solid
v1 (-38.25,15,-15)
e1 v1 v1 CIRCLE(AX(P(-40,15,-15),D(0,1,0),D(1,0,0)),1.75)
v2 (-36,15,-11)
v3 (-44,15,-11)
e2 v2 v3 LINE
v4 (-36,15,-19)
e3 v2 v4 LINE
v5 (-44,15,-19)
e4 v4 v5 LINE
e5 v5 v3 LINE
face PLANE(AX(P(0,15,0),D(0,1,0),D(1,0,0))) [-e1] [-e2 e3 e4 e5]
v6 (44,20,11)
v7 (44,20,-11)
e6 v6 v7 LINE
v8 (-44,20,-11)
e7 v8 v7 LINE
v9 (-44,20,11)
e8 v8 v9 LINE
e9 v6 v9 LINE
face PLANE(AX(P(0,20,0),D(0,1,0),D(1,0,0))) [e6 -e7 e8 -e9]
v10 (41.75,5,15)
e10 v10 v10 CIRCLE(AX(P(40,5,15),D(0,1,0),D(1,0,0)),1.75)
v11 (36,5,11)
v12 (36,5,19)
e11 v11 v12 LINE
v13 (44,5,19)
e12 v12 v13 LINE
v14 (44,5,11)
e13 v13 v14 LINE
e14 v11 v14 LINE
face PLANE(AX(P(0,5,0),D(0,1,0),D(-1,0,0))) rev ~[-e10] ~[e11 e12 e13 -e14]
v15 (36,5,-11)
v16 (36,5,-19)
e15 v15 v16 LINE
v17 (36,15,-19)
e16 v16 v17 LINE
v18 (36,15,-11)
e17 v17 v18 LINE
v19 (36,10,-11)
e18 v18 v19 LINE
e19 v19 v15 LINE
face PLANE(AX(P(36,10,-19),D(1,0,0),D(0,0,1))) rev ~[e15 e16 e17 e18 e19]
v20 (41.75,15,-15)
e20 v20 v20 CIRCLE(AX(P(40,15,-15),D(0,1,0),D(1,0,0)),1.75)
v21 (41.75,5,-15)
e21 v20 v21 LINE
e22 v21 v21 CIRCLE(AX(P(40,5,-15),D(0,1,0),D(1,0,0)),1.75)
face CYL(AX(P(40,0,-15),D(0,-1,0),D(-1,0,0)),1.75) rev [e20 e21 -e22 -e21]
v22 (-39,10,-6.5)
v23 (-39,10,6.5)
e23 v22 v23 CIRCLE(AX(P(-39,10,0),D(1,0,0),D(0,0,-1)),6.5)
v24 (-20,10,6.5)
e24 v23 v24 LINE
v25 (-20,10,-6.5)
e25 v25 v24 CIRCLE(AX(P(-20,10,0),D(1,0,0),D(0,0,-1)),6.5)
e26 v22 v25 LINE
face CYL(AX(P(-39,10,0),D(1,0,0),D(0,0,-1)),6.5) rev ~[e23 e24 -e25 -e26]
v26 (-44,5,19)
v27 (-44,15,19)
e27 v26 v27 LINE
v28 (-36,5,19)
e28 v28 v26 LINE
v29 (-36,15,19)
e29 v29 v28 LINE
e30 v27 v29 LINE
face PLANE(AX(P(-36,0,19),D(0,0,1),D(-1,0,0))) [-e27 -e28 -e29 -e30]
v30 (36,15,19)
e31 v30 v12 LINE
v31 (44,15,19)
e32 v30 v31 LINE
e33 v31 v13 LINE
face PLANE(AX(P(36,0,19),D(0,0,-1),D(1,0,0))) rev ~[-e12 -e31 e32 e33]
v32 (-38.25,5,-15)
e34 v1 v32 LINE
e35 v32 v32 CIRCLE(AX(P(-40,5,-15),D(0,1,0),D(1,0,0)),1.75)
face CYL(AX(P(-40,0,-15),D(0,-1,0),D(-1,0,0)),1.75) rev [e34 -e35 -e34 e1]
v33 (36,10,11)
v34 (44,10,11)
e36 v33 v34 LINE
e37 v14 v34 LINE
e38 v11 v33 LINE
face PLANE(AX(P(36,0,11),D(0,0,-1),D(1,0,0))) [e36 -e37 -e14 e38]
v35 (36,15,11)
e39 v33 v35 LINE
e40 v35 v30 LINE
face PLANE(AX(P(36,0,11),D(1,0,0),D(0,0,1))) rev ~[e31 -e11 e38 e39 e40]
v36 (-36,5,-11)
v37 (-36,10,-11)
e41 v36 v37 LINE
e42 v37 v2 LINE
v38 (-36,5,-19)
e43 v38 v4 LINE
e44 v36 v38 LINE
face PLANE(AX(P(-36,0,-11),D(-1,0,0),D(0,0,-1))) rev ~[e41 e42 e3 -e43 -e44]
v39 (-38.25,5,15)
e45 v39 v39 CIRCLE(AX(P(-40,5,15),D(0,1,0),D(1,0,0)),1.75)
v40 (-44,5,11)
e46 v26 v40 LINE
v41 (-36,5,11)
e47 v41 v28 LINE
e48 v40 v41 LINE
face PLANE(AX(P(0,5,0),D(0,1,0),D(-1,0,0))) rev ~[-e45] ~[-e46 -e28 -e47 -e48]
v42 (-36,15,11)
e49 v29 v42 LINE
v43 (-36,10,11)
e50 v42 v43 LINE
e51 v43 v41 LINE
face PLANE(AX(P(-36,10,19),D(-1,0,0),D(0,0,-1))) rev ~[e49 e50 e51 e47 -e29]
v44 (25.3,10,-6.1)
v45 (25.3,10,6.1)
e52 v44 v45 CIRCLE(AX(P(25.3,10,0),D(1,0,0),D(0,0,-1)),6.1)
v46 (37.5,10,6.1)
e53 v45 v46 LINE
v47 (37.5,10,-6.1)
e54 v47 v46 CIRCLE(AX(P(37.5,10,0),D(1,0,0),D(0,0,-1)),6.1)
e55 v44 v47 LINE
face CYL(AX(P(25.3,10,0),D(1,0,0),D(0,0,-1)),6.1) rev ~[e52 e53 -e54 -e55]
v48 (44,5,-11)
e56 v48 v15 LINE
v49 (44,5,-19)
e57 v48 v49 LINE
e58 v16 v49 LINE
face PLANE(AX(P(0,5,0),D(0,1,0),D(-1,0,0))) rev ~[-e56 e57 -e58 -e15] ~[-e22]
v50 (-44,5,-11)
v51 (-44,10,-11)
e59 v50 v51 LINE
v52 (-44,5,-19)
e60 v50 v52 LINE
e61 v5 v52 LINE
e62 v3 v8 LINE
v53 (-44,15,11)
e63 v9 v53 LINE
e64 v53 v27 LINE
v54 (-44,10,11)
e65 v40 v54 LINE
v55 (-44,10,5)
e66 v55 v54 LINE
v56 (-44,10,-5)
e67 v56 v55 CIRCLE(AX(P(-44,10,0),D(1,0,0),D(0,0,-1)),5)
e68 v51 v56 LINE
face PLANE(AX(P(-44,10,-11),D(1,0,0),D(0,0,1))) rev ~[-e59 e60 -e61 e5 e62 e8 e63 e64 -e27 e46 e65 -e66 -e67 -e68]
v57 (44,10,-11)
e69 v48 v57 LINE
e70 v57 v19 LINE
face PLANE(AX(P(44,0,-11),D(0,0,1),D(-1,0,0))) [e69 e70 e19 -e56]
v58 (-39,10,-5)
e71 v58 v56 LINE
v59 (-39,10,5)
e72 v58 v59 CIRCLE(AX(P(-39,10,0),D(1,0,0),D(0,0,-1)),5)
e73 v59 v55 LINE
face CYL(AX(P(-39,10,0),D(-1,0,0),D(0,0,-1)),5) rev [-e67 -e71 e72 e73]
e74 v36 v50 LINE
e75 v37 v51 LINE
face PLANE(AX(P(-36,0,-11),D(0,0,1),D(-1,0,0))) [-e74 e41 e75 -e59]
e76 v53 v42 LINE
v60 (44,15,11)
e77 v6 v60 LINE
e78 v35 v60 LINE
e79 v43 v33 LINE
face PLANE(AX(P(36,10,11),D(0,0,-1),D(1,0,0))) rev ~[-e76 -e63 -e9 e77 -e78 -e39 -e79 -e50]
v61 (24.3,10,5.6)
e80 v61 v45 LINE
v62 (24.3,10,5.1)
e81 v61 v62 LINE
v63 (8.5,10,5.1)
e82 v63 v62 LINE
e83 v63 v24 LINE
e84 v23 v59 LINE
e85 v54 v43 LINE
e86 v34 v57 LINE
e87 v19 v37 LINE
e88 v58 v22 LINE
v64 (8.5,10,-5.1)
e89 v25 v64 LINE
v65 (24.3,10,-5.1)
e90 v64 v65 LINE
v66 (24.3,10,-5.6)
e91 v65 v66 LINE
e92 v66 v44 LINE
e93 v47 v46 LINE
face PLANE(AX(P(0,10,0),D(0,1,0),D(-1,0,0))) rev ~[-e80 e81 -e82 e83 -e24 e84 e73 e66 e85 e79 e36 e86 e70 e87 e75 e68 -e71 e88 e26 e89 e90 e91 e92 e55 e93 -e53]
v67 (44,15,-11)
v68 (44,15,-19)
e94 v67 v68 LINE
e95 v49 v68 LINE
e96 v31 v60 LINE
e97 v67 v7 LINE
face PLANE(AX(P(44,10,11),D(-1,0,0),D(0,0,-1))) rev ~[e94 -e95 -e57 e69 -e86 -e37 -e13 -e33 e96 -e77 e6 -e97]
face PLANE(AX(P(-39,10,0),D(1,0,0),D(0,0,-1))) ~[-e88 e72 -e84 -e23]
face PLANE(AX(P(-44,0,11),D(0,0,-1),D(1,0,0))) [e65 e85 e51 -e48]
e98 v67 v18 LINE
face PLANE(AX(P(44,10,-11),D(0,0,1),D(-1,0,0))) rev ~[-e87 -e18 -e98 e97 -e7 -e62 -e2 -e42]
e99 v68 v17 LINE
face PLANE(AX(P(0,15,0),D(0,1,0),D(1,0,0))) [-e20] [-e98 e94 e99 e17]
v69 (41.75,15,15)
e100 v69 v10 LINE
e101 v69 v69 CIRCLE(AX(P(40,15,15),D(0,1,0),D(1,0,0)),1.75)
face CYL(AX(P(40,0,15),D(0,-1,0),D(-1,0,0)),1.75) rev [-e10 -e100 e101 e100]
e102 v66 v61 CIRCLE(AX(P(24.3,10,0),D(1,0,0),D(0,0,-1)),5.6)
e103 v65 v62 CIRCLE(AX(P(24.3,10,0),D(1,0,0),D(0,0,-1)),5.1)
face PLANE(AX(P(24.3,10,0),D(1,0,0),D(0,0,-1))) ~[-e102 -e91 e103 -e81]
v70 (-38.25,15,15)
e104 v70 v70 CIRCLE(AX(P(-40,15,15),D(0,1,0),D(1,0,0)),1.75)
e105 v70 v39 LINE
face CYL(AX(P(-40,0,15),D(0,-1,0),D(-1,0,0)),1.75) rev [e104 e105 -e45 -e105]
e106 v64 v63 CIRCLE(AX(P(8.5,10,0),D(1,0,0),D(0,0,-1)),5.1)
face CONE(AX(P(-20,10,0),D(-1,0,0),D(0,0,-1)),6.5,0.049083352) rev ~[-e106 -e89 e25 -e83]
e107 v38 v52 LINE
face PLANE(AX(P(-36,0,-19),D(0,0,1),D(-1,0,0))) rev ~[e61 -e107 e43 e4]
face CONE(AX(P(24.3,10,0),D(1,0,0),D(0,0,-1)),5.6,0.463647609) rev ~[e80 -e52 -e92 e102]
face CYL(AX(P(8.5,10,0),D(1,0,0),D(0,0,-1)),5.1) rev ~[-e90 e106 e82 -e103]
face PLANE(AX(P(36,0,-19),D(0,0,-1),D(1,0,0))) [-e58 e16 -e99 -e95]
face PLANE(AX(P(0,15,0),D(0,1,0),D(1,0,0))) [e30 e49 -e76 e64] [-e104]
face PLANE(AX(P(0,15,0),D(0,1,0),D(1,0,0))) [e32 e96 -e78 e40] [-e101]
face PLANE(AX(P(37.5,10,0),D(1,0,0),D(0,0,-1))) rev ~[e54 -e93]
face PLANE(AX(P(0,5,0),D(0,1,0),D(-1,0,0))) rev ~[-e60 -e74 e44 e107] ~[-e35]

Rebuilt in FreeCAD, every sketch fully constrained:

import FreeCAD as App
import Part
import Sketcher

V = App.Vector

doc = App.newDocument("Part")
body = doc.addObject("PartDesign::Body", "Body")

# Sketch on XZ plane
sketch1 = body.newObject("Sketcher::SketchObject", "Sketch")
sketch1.AttachmentSupport = (doc.getObject("XZ_Plane"), [""])
sketch1.MapMode = "FlatFace"
sketch1.addGeometry(Part.LineSegment(V(-44, -11, 0), V(-44, 11, 0)), False)
sketch1.addGeometry(Part.LineSegment(V(-44, 11, 0), V(44, 11, 0)), False)
sketch1.addGeometry(Part.LineSegment(V(44, 11, 0), V(44, -11, 0)), False)
sketch1.addGeometry(Part.LineSegment(V(44, -11, 0), V(-44, -11, 0)), False)
sketch1.addConstraint(Sketcher.Constraint("Coincident", 0, 2, 1, 1))
sketch1.addConstraint(Sketcher.Constraint("Coincident", 1, 2, 2, 1))
sketch1.addConstraint(Sketcher.Constraint("Coincident", 2, 2, 3, 1))
sketch1.addConstraint(Sketcher.Constraint("Coincident", 3, 2, 0, 1))
sketch1.addConstraint(Sketcher.Constraint("Vertical", 0))
sketch1.addConstraint(Sketcher.Constraint("Horizontal", 1))
sketch1.addConstraint(Sketcher.Constraint("Vertical", 2))
sketch1.addConstraint(Sketcher.Constraint("Horizontal", 3))
sketch1.addConstraint(Sketcher.Constraint("Symmetric", 0, 2, 2, 2, -1, 1))
sketch1.addConstraint(Sketcher.Constraint("DistanceX", 1, 1, 1, 2, 88.0))
sketch1.addConstraint(Sketcher.Constraint("DistanceY", 0, 1, 0, 2, 22.0))
pad1 = body.newObject("PartDesign::Pad", "Pad")
pad1.Profile = sketch1
pad1.Length = 10
pad1.Reversed = True

# Sketch on XZ plane
sketch2 = body.newObject("Sketcher::SketchObject", "Sketch001")
sketch2.AttachmentSupport = (doc.getObject("XZ_Plane"), [""])
sketch2.MapMode = "FlatFace"
sketch2.addGeometry(Part.LineSegment(V(-36, 11, 0), V(-44, 11, 0)), False)
sketch2.addGeometry(Part.LineSegment(V(-44, 11, 0), V(-44, 19, 0)), False)
sketch2.addGeometry(Part.LineSegment(V(-44, 19, 0), V(-36, 19, 0)), False)
sketch2.addGeometry(Part.LineSegment(V(-36, 19, 0), V(-36, 11, 0)), False)
sketch2.addGeometry(Part.Circle(V(-40, 15, 0), V(0, 0, 1), 1.75), False)
sketch2.addGeometry(Part.LineSegment(V(-44, -19, 0), V(-44, -11, 0)), False)
sketch2.addGeometry(Part.LineSegment(V(-44, -11, 0), V(-36, -11, 0)), False)
sketch2.addGeometry(Part.LineSegment(V(-36, -11, 0), V(-36, -19, 0)), False)
sketch2.addGeometry(Part.LineSegment(V(-36, -19, 0), V(-44, -19, 0)), False)
sketch2.addGeometry(Part.Circle(V(-40, -15, 0), V(0, 0, 1), 1.75), False)
sketch2.addGeometry(Part.LineSegment(V(44, 11, 0), V(36, 11, 0)), False)
sketch2.addGeometry(Part.LineSegment(V(36, 11, 0), V(36, 19, 0)), False)
sketch2.addGeometry(Part.LineSegment(V(36, 19, 0), V(44, 19, 0)), False)
sketch2.addGeometry(Part.LineSegment(V(44, 19, 0), V(44, 11, 0)), False)
sketch2.addGeometry(Part.Circle(V(40, 15, 0), V(0, 0, 1), 1.75), False)
sketch2.addGeometry(Part.LineSegment(V(36, -19, 0), V(36, -11, 0)), False)
sketch2.addGeometry(Part.LineSegment(V(36, -11, 0), V(44, -11, 0)), False)
sketch2.addGeometry(Part.LineSegment(V(44, -11, 0), V(44, -19, 0)), False)
sketch2.addGeometry(Part.LineSegment(V(44, -19, 0), V(36, -19, 0)), False)
sketch2.addGeometry(Part.Circle(V(40, -15, 0), V(0, 0, 1), 1.75), False)
sketch2.addConstraint(Sketcher.Constraint("Coincident", 0, 2, 1, 1))
sketch2.addConstraint(Sketcher.Constraint("Coincident", 1, 2, 2, 1))
sketch2.addConstraint(Sketcher.Constraint("Coincident", 2, 2, 3, 1))
sketch2.addConstraint(Sketcher.Constraint("Coincident", 3, 2, 0, 1))
sketch2.addConstraint(Sketcher.Constraint("Coincident", 5, 2, 6, 1))
sketch2.addConstraint(Sketcher.Constraint("Coincident", 6, 2, 7, 1))
sketch2.addConstraint(Sketcher.Constraint("Coincident", 7, 2, 8, 1))
sketch2.addConstraint(Sketcher.Constraint("Coincident", 8, 2, 5, 1))
sketch2.addConstraint(Sketcher.Constraint("Coincident", 10, 2, 11, 1))
sketch2.addConstraint(Sketcher.Constraint("Coincident", 11, 2, 12, 1))
sketch2.addConstraint(Sketcher.Constraint("Coincident", 12, 2, 13, 1))
sketch2.addConstraint(Sketcher.Constraint("Coincident", 13, 2, 10, 1))
sketch2.addConstraint(Sketcher.Constraint("Coincident", 15, 2, 16, 1))
sketch2.addConstraint(Sketcher.Constraint("Coincident", 16, 2, 17, 1))
sketch2.addConstraint(Sketcher.Constraint("Coincident", 17, 2, 18, 1))
sketch2.addConstraint(Sketcher.Constraint("Coincident", 18, 2, 15, 1))
sketch2.addConstraint(Sketcher.Constraint("Horizontal", 0))
sketch2.addConstraint(Sketcher.Constraint("Vertical", 1))
sketch2.addConstraint(Sketcher.Constraint("Horizontal", 2))
sketch2.addConstraint(Sketcher.Constraint("Vertical", 3))
sketch2.addConstraint(Sketcher.Constraint("Vertical", 5))
sketch2.addConstraint(Sketcher.Constraint("Horizontal", 6))
sketch2.addConstraint(Sketcher.Constraint("Vertical", 7))
sketch2.addConstraint(Sketcher.Constraint("Horizontal", 8))
sketch2.addConstraint(Sketcher.Constraint("Horizontal", 10))
sketch2.addConstraint(Sketcher.Constraint("Vertical", 11))
sketch2.addConstraint(Sketcher.Constraint("Horizontal", 12))
sketch2.addConstraint(Sketcher.Constraint("Vertical", 13))
sketch2.addConstraint(Sketcher.Constraint("Vertical", 15))
sketch2.addConstraint(Sketcher.Constraint("Horizontal", 16))
sketch2.addConstraint(Sketcher.Constraint("Vertical", 17))
sketch2.addConstraint(Sketcher.Constraint("Horizontal", 18))
sketch2.addConstraint(Sketcher.Constraint("Equal", 4, 9))
sketch2.addConstraint(Sketcher.Constraint("Equal", 9, 14))
sketch2.addConstraint(Sketcher.Constraint("Equal", 14, 19))
sketch2.addConstraint(Sketcher.Constraint("Symmetric", 9, 3, 14, 3, -1, 1))
sketch2.addConstraint(Sketcher.Constraint("Symmetric", 4, 3, 19, 3, -1, 1))
sketch2.addConstraint(Sketcher.Constraint("Symmetric", 6, 2, 10, 2, -1, 1))
sketch2.addConstraint(Sketcher.Constraint("Symmetric", 8, 2, 12, 2, -1, 1))
sketch2.addConstraint(Sketcher.Constraint("Symmetric", 3, 2, 15, 2, -1, 1))
sketch2.addConstraint(Sketcher.Constraint("Symmetric", 1, 2, 17, 2, -1, 1))
sketch2.addConstraint(Sketcher.Constraint("Symmetric", 4, 3, 14, 3, -2))
sketch2.addConstraint(Sketcher.Constraint("Symmetric", 3, 2, 10, 2, -2))
sketch2.addConstraint(Sketcher.Constraint("Symmetric", 1, 2, 12, 2, -2))
sketch2.addConstraint(Sketcher.Constraint("Equal", 18, 1))
sketch2.addConstraint(Sketcher.Constraint("Diameter", 4, 3.5))
sketch2.addConstraint(Sketcher.Constraint("DistanceX", 0, 2, 0, 1, 8.0))
sketch2.addConstraint(Sketcher.Constraint("DistanceY", 9, 3, 4, 3, 30.0))
sketch2.addConstraint(Sketcher.Constraint("DistanceX", 4, 3, 14, 3, 80.0))
sketch2.addConstraint(Sketcher.Constraint("DistanceY", 5, 2, 0, 2, 22.0))
sketch2.addConstraint(Sketcher.Constraint("DistanceX", 2, 2, 12, 2, 80.0))
pad2 = body.newObject("PartDesign::Pad", "Pad001")
pad2.Profile = sketch2
pad2.Length = 5
pad2.Reversed = True

# Sketch on XZ plane
sketch3 = body.newObject("Sketcher::SketchObject", "Sketch002")
sketch3.AttachmentSupport = (doc.getObject("XZ_Plane"), [""])
sketch3.MapMode = "FlatFace"
sketch3.AttachmentOffset = App.Placement(V(0, 0, -10), App.Rotation())
sketch3.addGeometry(Part.LineSegment(V(44, 11, 0), V(44, -11, 0)), False)
sketch3.addGeometry(Part.LineSegment(V(44, -11, 0), V(-44, -11, 0)), False)
sketch3.addGeometry(Part.LineSegment(V(-44, -11, 0), V(-44, 11, 0)), False)
sketch3.addGeometry(Part.LineSegment(V(-44, 11, 0), V(44, 11, 0)), False)
sketch3.addConstraint(Sketcher.Constraint("Coincident", 0, 2, 1, 1))
sketch3.addConstraint(Sketcher.Constraint("Coincident", 1, 2, 2, 1))
sketch3.addConstraint(Sketcher.Constraint("Coincident", 2, 2, 3, 1))
sketch3.addConstraint(Sketcher.Constraint("Coincident", 3, 2, 0, 1))
sketch3.addConstraint(Sketcher.Constraint("Vertical", 0))
sketch3.addConstraint(Sketcher.Constraint("Horizontal", 1))
sketch3.addConstraint(Sketcher.Constraint("Vertical", 2))
sketch3.addConstraint(Sketcher.Constraint("Horizontal", 3))
sketch3.addConstraint(Sketcher.Constraint("Symmetric", 0, 2, 2, 2, -1, 1))
sketch3.addConstraint(Sketcher.Constraint("DistanceX", 1, 2, 1, 1, 88.0))
sketch3.addConstraint(Sketcher.Constraint("DistanceY", 0, 2, 0, 1, 22.0))
pad3 = body.newObject("PartDesign::Pad", "Pad002")
pad3.Profile = sketch3
pad3.Length = 10
pad3.Reversed = True

# Sketch on XZ plane
sketch4 = body.newObject("Sketcher::SketchObject", "Sketch003")
sketch4.AttachmentSupport = (doc.getObject("XZ_Plane"), [""])
sketch4.MapMode = "FlatFace"
sketch4.AttachmentOffset = App.Placement(V(0, 0, -10), App.Rotation())
sketch4.addGeometry(Part.LineSegment(V(36, -11, 0), V(44, -11, 0)), False)
sketch4.addGeometry(Part.LineSegment(V(44, -11, 0), V(44, -19, 0)), False)
sketch4.addGeometry(Part.LineSegment(V(44, -19, 0), V(36, -19, 0)), False)
sketch4.addGeometry(Part.LineSegment(V(36, -19, 0), V(36, -11, 0)), False)
sketch4.addGeometry(Part.Circle(V(40, -15, 0), V(0, 0, 1), 1.75), False)
sketch4.addGeometry(Part.LineSegment(V(44, 19, 0), V(44, 11, 0)), False)
sketch4.addGeometry(Part.LineSegment(V(44, 11, 0), V(36, 11, 0)), False)
sketch4.addGeometry(Part.LineSegment(V(36, 11, 0), V(36, 19, 0)), False)
sketch4.addGeometry(Part.LineSegment(V(36, 19, 0), V(44, 19, 0)), False)
sketch4.addGeometry(Part.Circle(V(40, 15, 0), V(0, 0, 1), 1.75), False)
sketch4.addGeometry(Part.LineSegment(V(-44, -11, 0), V(-36, -11, 0)), False)
sketch4.addGeometry(Part.LineSegment(V(-36, -11, 0), V(-36, -19, 0)), False)
sketch4.addGeometry(Part.LineSegment(V(-36, -19, 0), V(-44, -19, 0)), False)
sketch4.addGeometry(Part.LineSegment(V(-44, -19, 0), V(-44, -11, 0)), False)
sketch4.addGeometry(Part.Circle(V(-40, -15, 0), V(0, 0, 1), 1.75), False)
sketch4.addGeometry(Part.LineSegment(V(-36, 19, 0), V(-36, 11, 0)), False)
sketch4.addGeometry(Part.LineSegment(V(-36, 11, 0), V(-44, 11, 0)), False)
sketch4.addGeometry(Part.LineSegment(V(-44, 11, 0), V(-44, 19, 0)), False)
sketch4.addGeometry(Part.LineSegment(V(-44, 19, 0), V(-36, 19, 0)), False)
sketch4.addGeometry(Part.Circle(V(-40, 15, 0), V(0, 0, 1), 1.75), False)
sketch4.addConstraint(Sketcher.Constraint("Coincident", 0, 2, 1, 1))
sketch4.addConstraint(Sketcher.Constraint("Coincident", 1, 2, 2, 1))
sketch4.addConstraint(Sketcher.Constraint("Coincident", 2, 2, 3, 1))
sketch4.addConstraint(Sketcher.Constraint("Coincident", 3, 2, 0, 1))
sketch4.addConstraint(Sketcher.Constraint("Coincident", 5, 2, 6, 1))
sketch4.addConstraint(Sketcher.Constraint("Coincident", 6, 2, 7, 1))
sketch4.addConstraint(Sketcher.Constraint("Coincident", 7, 2, 8, 1))
sketch4.addConstraint(Sketcher.Constraint("Coincident", 8, 2, 5, 1))
sketch4.addConstraint(Sketcher.Constraint("Coincident", 10, 2, 11, 1))
sketch4.addConstraint(Sketcher.Constraint("Coincident", 11, 2, 12, 1))
sketch4.addConstraint(Sketcher.Constraint("Coincident", 12, 2, 13, 1))
sketch4.addConstraint(Sketcher.Constraint("Coincident", 13, 2, 10, 1))
sketch4.addConstraint(Sketcher.Constraint("Coincident", 15, 2, 16, 1))
sketch4.addConstraint(Sketcher.Constraint("Coincident", 16, 2, 17, 1))
sketch4.addConstraint(Sketcher.Constraint("Coincident", 17, 2, 18, 1))
sketch4.addConstraint(Sketcher.Constraint("Coincident", 18, 2, 15, 1))
sketch4.addConstraint(Sketcher.Constraint("Horizontal", 0))
sketch4.addConstraint(Sketcher.Constraint("Vertical", 1))
sketch4.addConstraint(Sketcher.Constraint("Horizontal", 2))
sketch4.addConstraint(Sketcher.Constraint("Vertical", 3))
sketch4.addConstraint(Sketcher.Constraint("Vertical", 5))
sketch4.addConstraint(Sketcher.Constraint("Horizontal", 6))
sketch4.addConstraint(Sketcher.Constraint("Vertical", 7))
sketch4.addConstraint(Sketcher.Constraint("Horizontal", 8))
sketch4.addConstraint(Sketcher.Constraint("Horizontal", 10))
sketch4.addConstraint(Sketcher.Constraint("Vertical", 11))
sketch4.addConstraint(Sketcher.Constraint("Horizontal", 12))
sketch4.addConstraint(Sketcher.Constraint("Vertical", 13))
sketch4.addConstraint(Sketcher.Constraint("Vertical", 15))
sketch4.addConstraint(Sketcher.Constraint("Horizontal", 16))
sketch4.addConstraint(Sketcher.Constraint("Vertical", 17))
sketch4.addConstraint(Sketcher.Constraint("Horizontal", 18))
sketch4.addConstraint(Sketcher.Constraint("Equal", 4, 9))
sketch4.addConstraint(Sketcher.Constraint("Equal", 9, 14))
sketch4.addConstraint(Sketcher.Constraint("Equal", 14, 19))
sketch4.addConstraint(Sketcher.Constraint("Symmetric", 9, 3, 14, 3, -1, 1))
sketch4.addConstraint(Sketcher.Constraint("Symmetric", 4, 3, 19, 3, -1, 1))
sketch4.addConstraint(Sketcher.Constraint("Symmetric", 6, 2, 10, 2, -1, 1))
sketch4.addConstraint(Sketcher.Constraint("Symmetric", 8, 2, 12, 2, -1, 1))
sketch4.addConstraint(Sketcher.Constraint("Symmetric", 3, 2, 15, 2, -1, 1))
sketch4.addConstraint(Sketcher.Constraint("Symmetric", 1, 2, 17, 2, -1, 1))
sketch4.addConstraint(Sketcher.Constraint("Symmetric", 4, 3, 14, 3, -2))
sketch4.addConstraint(Sketcher.Constraint("Symmetric", 3, 2, 10, 2, -2))
sketch4.addConstraint(Sketcher.Constraint("Symmetric", 1, 2, 12, 2, -2))
sketch4.addConstraint(Sketcher.Constraint("Equal", 18, 1))
sketch4.addConstraint(Sketcher.Constraint("Diameter", 4, 3.5))
sketch4.addConstraint(Sketcher.Constraint("DistanceX", 0, 1, 0, 2, 8.0))
sketch4.addConstraint(Sketcher.Constraint("DistanceX", -1, 1, 4, 3, 40.0))
sketch4.addConstraint(Sketcher.Constraint("DistanceY", 4, 3, -1, 1, 15.0))
sketch4.addConstraint(Sketcher.Constraint("DistanceX", -1, 1, 0, 2, 44.0))
sketch4.addConstraint(Sketcher.Constraint("DistanceY", 0, 2, -1, 1, 11.0))
pad4 = body.newObject("PartDesign::Pad", "Pad003")
pad4.Profile = sketch4
pad4.Length = 10
pad4.Midplane = True

# Sketch on XZ plane
sketch5 = body.newObject("Sketcher::SketchObject", "Sketch004")
sketch5.AttachmentSupport = (doc.getObject("XZ_Plane"), [""])
sketch5.MapMode = "FlatFace"
sketch5.AttachmentOffset = App.Placement(V(0, 0, -10), App.Rotation())
sketch5.addGeometry(Part.LineSegment(V(-44, -5, 0), V(-44, 0, 0)), False)
sketch5.addGeometry(Part.LineSegment(V(-44, 0, 0), V(37.5, 0, 0)), False)
sketch5.addGeometry(Part.LineSegment(V(37.5, 0, 0), V(37.5, -6.1, 0)), False)
sketch5.addGeometry(Part.LineSegment(V(37.5, -6.1, 0), V(25.3, -6.1, 0)), False)
sketch5.addGeometry(Part.LineSegment(V(25.3, -6.1, 0), V(24.3, -5.6, 0)), False)
sketch5.addGeometry(Part.LineSegment(V(24.3, -5.6, 0), V(24.3, -5.1, 0)), False)
sketch5.addGeometry(Part.LineSegment(V(24.3, -5.1, 0), V(8.5, -5.1, 0)), False)
sketch5.addGeometry(Part.LineSegment(V(8.5, -5.1, 0), V(-20, -6.5, 0)), False)
sketch5.addGeometry(Part.LineSegment(V(-20, -6.5, 0), V(-39, -6.5, 0)), False)
sketch5.addGeometry(Part.LineSegment(V(-39, -6.5, 0), V(-39, -5, 0)), False)
sketch5.addGeometry(Part.LineSegment(V(-39, -5, 0), V(-44, -5, 0)), False)
sketch5.addConstraint(Sketcher.Constraint("Coincident", 0, 2, 1, 1))
sketch5.addConstraint(Sketcher.Constraint("Coincident", 1, 2, 2, 1))
sketch5.addConstraint(Sketcher.Constraint("Coincident", 2, 2, 3, 1))
sketch5.addConstraint(Sketcher.Constraint("Coincident", 3, 2, 4, 1))
sketch5.addConstraint(Sketcher.Constraint("Coincident", 4, 2, 5, 1))
sketch5.addConstraint(Sketcher.Constraint("Coincident", 5, 2, 6, 1))
sketch5.addConstraint(Sketcher.Constraint("Coincident", 6, 2, 7, 1))
sketch5.addConstraint(Sketcher.Constraint("Coincident", 7, 2, 8, 1))
sketch5.addConstraint(Sketcher.Constraint("Coincident", 8, 2, 9, 1))
sketch5.addConstraint(Sketcher.Constraint("Coincident", 9, 2, 10, 1))
sketch5.addConstraint(Sketcher.Constraint("Coincident", 10, 2, 0, 1))
sketch5.addConstraint(Sketcher.Constraint("Vertical", 0))
sketch5.addConstraint(Sketcher.Constraint("Horizontal", 1))
sketch5.addConstraint(Sketcher.Constraint("Vertical", 2))
sketch5.addConstraint(Sketcher.Constraint("Horizontal", 3))
sketch5.addConstraint(Sketcher.Constraint("Vertical", 5))
sketch5.addConstraint(Sketcher.Constraint("Horizontal", 6))
sketch5.addConstraint(Sketcher.Constraint("Horizontal", 8))
sketch5.addConstraint(Sketcher.Constraint("Vertical", 9))
sketch5.addConstraint(Sketcher.Constraint("Horizontal", 10))
sketch5.addConstraint(Sketcher.Constraint("PointOnObject", 0, 2, -1))
sketch5.addConstraint(Sketcher.Constraint("Equal", 10, 0))
sketch5.addConstraint(Sketcher.Constraint("DistanceX", 8, 2, 8, 1, 19.0))
sketch5.addConstraint(Sketcher.Constraint("DistanceX", 10, 2, 10, 1, 5.0))
sketch5.addConstraint(Sketcher.Constraint("DistanceX", 3, 2, 3, 1, 12.2))
sketch5.addConstraint(Sketcher.Constraint("DistanceY", 5, 1, 5, 2, 0.5))
sketch5.addConstraint(Sketcher.Constraint("DistanceX", 4, 2, 3, 2, 1.0))
sketch5.addConstraint(Sketcher.Constraint("DistanceY", 3, 2, 5, 2, 1.0))
sketch5.addConstraint(Sketcher.Constraint("DistanceX", 6, 2, 2, 2, 29.0))
sketch5.addConstraint(Sketcher.Constraint("DistanceX", 1, 1, 1, 2, 81.5))
sketch5.addConstraint(Sketcher.Constraint("DistanceY", 2, 2, 2, 1, 6.1))
sketch5.addConstraint(Sketcher.Constraint("DistanceY", 9, 1, 9, 2, 1.5))
sketch5.addConstraint(Sketcher.Constraint("DistanceX", 0, 2, -1, 1, 44.0))
groove = body.newObject("PartDesign::Groove", "Groove")
groove.Profile = sketch5
groove.ReferenceAxis = (sketch5, ["H_Axis"])
groove.Angle = 360

# Sketch on XZ plane
sketch6 = body.newObject("Sketcher::SketchObject", "Sketch005")
sketch6.AttachmentSupport = (doc.getObject("XZ_Plane"), [""])
sketch6.MapMode = "FlatFace"
sketch6.addGeometry(Part.LineSegment(V(-44, -11, 0), V(-44, 11, 0)), False)
sketch6.addGeometry(Part.LineSegment(V(-44, 11, 0), V(44, 11, 0)), False)
sketch6.addGeometry(Part.LineSegment(V(44, 11, 0), V(44, -11, 0)), False)
sketch6.addGeometry(Part.LineSegment(V(44, -11, 0), V(-44, -11, 0)), False)
sketch6.addConstraint(Sketcher.Constraint("Coincident", 0, 2, 1, 1))
sketch6.addConstraint(Sketcher.Constraint("Coincident", 1, 2, 2, 1))
sketch6.addConstraint(Sketcher.Constraint("Coincident", 2, 2, 3, 1))
sketch6.addConstraint(Sketcher.Constraint("Coincident", 3, 2, 0, 1))
sketch6.addConstraint(Sketcher.Constraint("Vertical", 0))
sketch6.addConstraint(Sketcher.Constraint("Horizontal", 1))
sketch6.addConstraint(Sketcher.Constraint("Vertical", 2))
sketch6.addConstraint(Sketcher.Constraint("Horizontal", 3))
sketch6.addConstraint(Sketcher.Constraint("Symmetric", 0, 2, 2, 2, -1, 1))
sketch6.addConstraint(Sketcher.Constraint("DistanceX", 1, 1, 1, 2, 88.0))
sketch6.addConstraint(Sketcher.Constraint("DistanceY", 0, 1, 0, 2, 22.0))
pocket1 = body.newObject("PartDesign::Pocket", "Pocket")
pocket1.Profile = sketch6
pocket1.Length = 10

# Sketch on XZ plane
sketch7 = body.newObject("Sketcher::SketchObject", "Sketch006")
sketch7.AttachmentSupport = (doc.getObject("XZ_Plane"), [""])
sketch7.MapMode = "FlatFace"
sketch7.addGeometry(Part.LineSegment(V(-44, 19, 0), V(-36, 19, 0)), False)
sketch7.addGeometry(Part.LineSegment(V(-36, 19, 0), V(-36, 11, 0)), False)
sketch7.addGeometry(Part.LineSegment(V(-36, 11, 0), V(36, 11, 0)), False)
sketch7.addGeometry(Part.LineSegment(V(36, 11, 0), V(36, 19, 0)), False)
sketch7.addGeometry(Part.LineSegment(V(36, 19, 0), V(44, 19, 0)), False)
sketch7.addGeometry(Part.LineSegment(V(44, 19, 0), V(44, -19, 0)), False)
sketch7.addGeometry(Part.LineSegment(V(44, -19, 0), V(36, -19, 0)), False)
sketch7.addGeometry(Part.LineSegment(V(36, -19, 0), V(36, -11, 0)), False)
sketch7.addGeometry(Part.LineSegment(V(36, -11, 0), V(-36, -11, 0)), False)
sketch7.addGeometry(Part.LineSegment(V(-36, -11, 0), V(-36, -19, 0)), False)
sketch7.addGeometry(Part.LineSegment(V(-36, -19, 0), V(-44, -19, 0)), False)
sketch7.addGeometry(Part.LineSegment(V(-44, -19, 0), V(-44, 19, 0)), False)
sketch7.addGeometry(Part.Circle(V(40, -15, 0), V(0, 0, 1), 1.75), False)
sketch7.addGeometry(Part.Circle(V(-40, 15, 0), V(0, 0, 1), 1.75), False)
sketch7.addConstraint(Sketcher.Constraint("Coincident", 0, 2, 1, 1))
sketch7.addConstraint(Sketcher.Constraint("Coincident", 1, 2, 2, 1))
sketch7.addConstraint(Sketcher.Constraint("Coincident", 2, 2, 3, 1))
sketch7.addConstraint(Sketcher.Constraint("Coincident", 3, 2, 4, 1))
sketch7.addConstraint(Sketcher.Constraint("Coincident", 4, 2, 5, 1))
sketch7.addConstraint(Sketcher.Constraint("Coincident", 5, 2, 6, 1))
sketch7.addConstraint(Sketcher.Constraint("Coincident", 6, 2, 7, 1))
sketch7.addConstraint(Sketcher.Constraint("Coincident", 7, 2, 8, 1))
sketch7.addConstraint(Sketcher.Constraint("Coincident", 8, 2, 9, 1))
sketch7.addConstraint(Sketcher.Constraint("Coincident", 9, 2, 10, 1))
sketch7.addConstraint(Sketcher.Constraint("Coincident", 10, 2, 11, 1))
sketch7.addConstraint(Sketcher.Constraint("Coincident", 11, 2, 0, 1))
sketch7.addConstraint(Sketcher.Constraint("Horizontal", 0))
sketch7.addConstraint(Sketcher.Constraint("Vertical", 1))
sketch7.addConstraint(Sketcher.Constraint("Horizontal", 2))
sketch7.addConstraint(Sketcher.Constraint("Vertical", 3))
sketch7.addConstraint(Sketcher.Constraint("Horizontal", 4))
sketch7.addConstraint(Sketcher.Constraint("Vertical", 5))
sketch7.addConstraint(Sketcher.Constraint("Horizontal", 6))
sketch7.addConstraint(Sketcher.Constraint("Vertical", 7))
sketch7.addConstraint(Sketcher.Constraint("Horizontal", 8))
sketch7.addConstraint(Sketcher.Constraint("Vertical", 9))
sketch7.addConstraint(Sketcher.Constraint("Horizontal", 10))
sketch7.addConstraint(Sketcher.Constraint("Vertical", 11))
sketch7.addConstraint(Sketcher.Constraint("Equal", 12, 13))
sketch7.addConstraint(Sketcher.Constraint("Symmetric", 12, 3, 13, 3, -1, 1))
sketch7.addConstraint(Sketcher.Constraint("Symmetric", 0, 2, 6, 2, -1, 1))
sketch7.addConstraint(Sketcher.Constraint("Symmetric", 2, 2, 8, 2, -1, 1))
sketch7.addConstraint(Sketcher.Constraint("Symmetric", 4, 2, 10, 2, -1, 1))
sketch7.addConstraint(Sketcher.Constraint("Symmetric", 0, 2, 3, 2, -2))
sketch7.addConstraint(Sketcher.Constraint("Equal", 10, 1))
sketch7.addConstraint(Sketcher.Constraint("Diameter", 12, 3.5))
sketch7.addConstraint(Sketcher.Constraint("DistanceX", 0, 1, 0, 2, 8.0))
sketch7.addConstraint(Sketcher.Constraint("DistanceX", 13, 3, 12, 3, 80.0))
sketch7.addConstraint(Sketcher.Constraint("DistanceY", 12, 3, 13, 3, 30.0))
sketch7.addConstraint(Sketcher.Constraint("DistanceX", 0, 2, 4, 2, 80.0))
sketch7.addConstraint(Sketcher.Constraint("DistanceY", 5, 2, 2, 2, 30.0))
pocket2 = body.newObject("PartDesign::Pocket", "Pocket001")
pocket2.Profile = sketch7
pocket2.Length = 5

doc.recompute()
